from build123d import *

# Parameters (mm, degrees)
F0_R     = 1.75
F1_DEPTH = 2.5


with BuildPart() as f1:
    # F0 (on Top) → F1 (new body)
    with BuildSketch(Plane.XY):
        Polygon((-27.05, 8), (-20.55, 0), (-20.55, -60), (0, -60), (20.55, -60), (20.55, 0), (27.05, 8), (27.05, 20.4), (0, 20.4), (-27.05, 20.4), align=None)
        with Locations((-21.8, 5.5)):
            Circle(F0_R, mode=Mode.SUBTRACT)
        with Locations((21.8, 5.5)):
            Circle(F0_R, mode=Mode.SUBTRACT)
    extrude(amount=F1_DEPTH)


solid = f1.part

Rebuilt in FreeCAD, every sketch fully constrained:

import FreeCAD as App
import Part
import Sketcher
Q = App.Units.Quantity

doc = App.newDocument("Part")
body = doc.addObject("PartDesign::Body", "Body")

# Sketch on XY plane
sketch1 = body.newObject("Sketcher::SketchObject", "Sketch")
sketch1.AttachmentSupport = (doc.getObject("XY_Plane"), [""])
sketch1.MapMode = "FlatFace"
sketch1.addGeometry(Part.LineSegment(App.Vector(-27.1, 8, 0), App.Vector(-20.6, 0, 0)), False)
sketch1.addGeometry(Part.LineSegment(App.Vector(-20.6, 0, 0), App.Vector(-20.6, -60, 0)), False)
sketch1.addGeometry(Part.LineSegment(App.Vector(-20.6, -60, 0), App.Vector(20.6, -60, 0)), False)
sketch1.addGeometry(Part.LineSegment(App.Vector(20.6, -60, 0), App.Vector(20.6, 0, 0)), False)
sketch1.addGeometry(Part.LineSegment(App.Vector(20.6, 0, 0), App.Vector(27.1, 8, 0)), False)
sketch1.addGeometry(Part.LineSegment(App.Vector(27.1, 8, 0), App.Vector(27.1, 20.4, 0)), False)
sketch1.addGeometry(Part.LineSegment(App.Vector(27.1, 20.4, 0), App.Vector(-27.1, 20.4, 0)), False)
sketch1.addGeometry(Part.LineSegment(App.Vector(-27.1, 20.4, 0), App.Vector(-27.1, 8, 0)), False)
sketch1.addGeometry(Part.Circle(App.Vector(-21.8, 5.5, 0), App.Vector(0, 0, 1), 1.8), False)
sketch1.addGeometry(Part.Circle(App.Vector(21.8, 5.5, 0), App.Vector(0, 0, 1), 1.8), False)
sketch1.addConstraint(Sketcher.Constraint("Coincident", 0, 2, 1, 1))
sketch1.addConstraint(Sketcher.Constraint("Coincident", 1, 2, 2, 1))
sketch1.addConstraint(Sketcher.Constraint("Coincident", 2, 2, 3, 1))
sketch1.addConstraint(Sketcher.Constraint("Coincident", 3, 2, 4, 1))
sketch1.addConstraint(Sketcher.Constraint("Coincident", 4, 2, 5, 1))
sketch1.addConstraint(Sketcher.Constraint("Coincident", 5, 2, 6, 1))
sketch1.addConstraint(Sketcher.Constraint("Coincident", 6, 2, 7, 1))
sketch1.addConstraint(Sketcher.Constraint("Coincident", 7, 2, 0, 1))
sketch1.addConstraint(Sketcher.Constraint("Vertical", 1))
sketch1.addConstraint(Sketcher.Constraint("Horizontal", 2))
sketch1.addConstraint(Sketcher.Constraint("Vertical", 3))
sketch1.addConstraint(Sketcher.Constraint("Vertical", 5))
sketch1.addConstraint(Sketcher.Constraint("Horizontal", 6))
sketch1.addConstraint(Sketcher.Constraint("Vertical", 7))
sketch1.addConstraint(Sketcher.Constraint("Equal", 8, 9))
sketch1.addConstraint(Sketcher.Constraint("Symmetric", 0, 2, 3, 2, -1, 1))
sketch1.addConstraint(Sketcher.Constraint("Symmetric", 8, 3, 9, 3, -2))
sketch1.addConstraint(Sketcher.Constraint("Symmetric", 4, 2, 7, 2, -2))
sketch1.addConstraint(Sketcher.Constraint("PointOnObject", 0, 2, -1))
sketch1.addConstraint(Sketcher.Constraint("Diameter", 8, Q("3.5 mm")))
sketch1.addConstraint(Sketcher.Constraint("DistanceY", 1, 2, 1, 1, Q("60 mm")))
sketch1.addConstraint(Sketcher.Constraint("DistanceX", 2, 1, 2, 2, Q("41.1 mm")))
sketch1.addConstraint(Sketcher.Constraint("DistanceX", 6, 2, 6, 1, Q("54.1 mm")))
sketch1.addConstraint(Sketcher.Constraint("DistanceY", 5, 1, 5, 2, Q("12.4 mm")))
sketch1.addConstraint(Sketcher.Constraint("DistanceY", -1, 1, 4, 2, Q("8 mm")))
sketch1.addConstraint(Sketcher.Constraint("DistanceX", 8, 3, -1, 1, Q("21.8 mm")))
sketch1.addConstraint(Sketcher.Constraint("DistanceY", -1, 1, 8, 3, Q("5.5 mm")))
pad1 = body.newObject("PartDesign::Pad", "Pad")
pad1.Profile = sketch1
pad1.Length = 2.5

doc.recompute()
